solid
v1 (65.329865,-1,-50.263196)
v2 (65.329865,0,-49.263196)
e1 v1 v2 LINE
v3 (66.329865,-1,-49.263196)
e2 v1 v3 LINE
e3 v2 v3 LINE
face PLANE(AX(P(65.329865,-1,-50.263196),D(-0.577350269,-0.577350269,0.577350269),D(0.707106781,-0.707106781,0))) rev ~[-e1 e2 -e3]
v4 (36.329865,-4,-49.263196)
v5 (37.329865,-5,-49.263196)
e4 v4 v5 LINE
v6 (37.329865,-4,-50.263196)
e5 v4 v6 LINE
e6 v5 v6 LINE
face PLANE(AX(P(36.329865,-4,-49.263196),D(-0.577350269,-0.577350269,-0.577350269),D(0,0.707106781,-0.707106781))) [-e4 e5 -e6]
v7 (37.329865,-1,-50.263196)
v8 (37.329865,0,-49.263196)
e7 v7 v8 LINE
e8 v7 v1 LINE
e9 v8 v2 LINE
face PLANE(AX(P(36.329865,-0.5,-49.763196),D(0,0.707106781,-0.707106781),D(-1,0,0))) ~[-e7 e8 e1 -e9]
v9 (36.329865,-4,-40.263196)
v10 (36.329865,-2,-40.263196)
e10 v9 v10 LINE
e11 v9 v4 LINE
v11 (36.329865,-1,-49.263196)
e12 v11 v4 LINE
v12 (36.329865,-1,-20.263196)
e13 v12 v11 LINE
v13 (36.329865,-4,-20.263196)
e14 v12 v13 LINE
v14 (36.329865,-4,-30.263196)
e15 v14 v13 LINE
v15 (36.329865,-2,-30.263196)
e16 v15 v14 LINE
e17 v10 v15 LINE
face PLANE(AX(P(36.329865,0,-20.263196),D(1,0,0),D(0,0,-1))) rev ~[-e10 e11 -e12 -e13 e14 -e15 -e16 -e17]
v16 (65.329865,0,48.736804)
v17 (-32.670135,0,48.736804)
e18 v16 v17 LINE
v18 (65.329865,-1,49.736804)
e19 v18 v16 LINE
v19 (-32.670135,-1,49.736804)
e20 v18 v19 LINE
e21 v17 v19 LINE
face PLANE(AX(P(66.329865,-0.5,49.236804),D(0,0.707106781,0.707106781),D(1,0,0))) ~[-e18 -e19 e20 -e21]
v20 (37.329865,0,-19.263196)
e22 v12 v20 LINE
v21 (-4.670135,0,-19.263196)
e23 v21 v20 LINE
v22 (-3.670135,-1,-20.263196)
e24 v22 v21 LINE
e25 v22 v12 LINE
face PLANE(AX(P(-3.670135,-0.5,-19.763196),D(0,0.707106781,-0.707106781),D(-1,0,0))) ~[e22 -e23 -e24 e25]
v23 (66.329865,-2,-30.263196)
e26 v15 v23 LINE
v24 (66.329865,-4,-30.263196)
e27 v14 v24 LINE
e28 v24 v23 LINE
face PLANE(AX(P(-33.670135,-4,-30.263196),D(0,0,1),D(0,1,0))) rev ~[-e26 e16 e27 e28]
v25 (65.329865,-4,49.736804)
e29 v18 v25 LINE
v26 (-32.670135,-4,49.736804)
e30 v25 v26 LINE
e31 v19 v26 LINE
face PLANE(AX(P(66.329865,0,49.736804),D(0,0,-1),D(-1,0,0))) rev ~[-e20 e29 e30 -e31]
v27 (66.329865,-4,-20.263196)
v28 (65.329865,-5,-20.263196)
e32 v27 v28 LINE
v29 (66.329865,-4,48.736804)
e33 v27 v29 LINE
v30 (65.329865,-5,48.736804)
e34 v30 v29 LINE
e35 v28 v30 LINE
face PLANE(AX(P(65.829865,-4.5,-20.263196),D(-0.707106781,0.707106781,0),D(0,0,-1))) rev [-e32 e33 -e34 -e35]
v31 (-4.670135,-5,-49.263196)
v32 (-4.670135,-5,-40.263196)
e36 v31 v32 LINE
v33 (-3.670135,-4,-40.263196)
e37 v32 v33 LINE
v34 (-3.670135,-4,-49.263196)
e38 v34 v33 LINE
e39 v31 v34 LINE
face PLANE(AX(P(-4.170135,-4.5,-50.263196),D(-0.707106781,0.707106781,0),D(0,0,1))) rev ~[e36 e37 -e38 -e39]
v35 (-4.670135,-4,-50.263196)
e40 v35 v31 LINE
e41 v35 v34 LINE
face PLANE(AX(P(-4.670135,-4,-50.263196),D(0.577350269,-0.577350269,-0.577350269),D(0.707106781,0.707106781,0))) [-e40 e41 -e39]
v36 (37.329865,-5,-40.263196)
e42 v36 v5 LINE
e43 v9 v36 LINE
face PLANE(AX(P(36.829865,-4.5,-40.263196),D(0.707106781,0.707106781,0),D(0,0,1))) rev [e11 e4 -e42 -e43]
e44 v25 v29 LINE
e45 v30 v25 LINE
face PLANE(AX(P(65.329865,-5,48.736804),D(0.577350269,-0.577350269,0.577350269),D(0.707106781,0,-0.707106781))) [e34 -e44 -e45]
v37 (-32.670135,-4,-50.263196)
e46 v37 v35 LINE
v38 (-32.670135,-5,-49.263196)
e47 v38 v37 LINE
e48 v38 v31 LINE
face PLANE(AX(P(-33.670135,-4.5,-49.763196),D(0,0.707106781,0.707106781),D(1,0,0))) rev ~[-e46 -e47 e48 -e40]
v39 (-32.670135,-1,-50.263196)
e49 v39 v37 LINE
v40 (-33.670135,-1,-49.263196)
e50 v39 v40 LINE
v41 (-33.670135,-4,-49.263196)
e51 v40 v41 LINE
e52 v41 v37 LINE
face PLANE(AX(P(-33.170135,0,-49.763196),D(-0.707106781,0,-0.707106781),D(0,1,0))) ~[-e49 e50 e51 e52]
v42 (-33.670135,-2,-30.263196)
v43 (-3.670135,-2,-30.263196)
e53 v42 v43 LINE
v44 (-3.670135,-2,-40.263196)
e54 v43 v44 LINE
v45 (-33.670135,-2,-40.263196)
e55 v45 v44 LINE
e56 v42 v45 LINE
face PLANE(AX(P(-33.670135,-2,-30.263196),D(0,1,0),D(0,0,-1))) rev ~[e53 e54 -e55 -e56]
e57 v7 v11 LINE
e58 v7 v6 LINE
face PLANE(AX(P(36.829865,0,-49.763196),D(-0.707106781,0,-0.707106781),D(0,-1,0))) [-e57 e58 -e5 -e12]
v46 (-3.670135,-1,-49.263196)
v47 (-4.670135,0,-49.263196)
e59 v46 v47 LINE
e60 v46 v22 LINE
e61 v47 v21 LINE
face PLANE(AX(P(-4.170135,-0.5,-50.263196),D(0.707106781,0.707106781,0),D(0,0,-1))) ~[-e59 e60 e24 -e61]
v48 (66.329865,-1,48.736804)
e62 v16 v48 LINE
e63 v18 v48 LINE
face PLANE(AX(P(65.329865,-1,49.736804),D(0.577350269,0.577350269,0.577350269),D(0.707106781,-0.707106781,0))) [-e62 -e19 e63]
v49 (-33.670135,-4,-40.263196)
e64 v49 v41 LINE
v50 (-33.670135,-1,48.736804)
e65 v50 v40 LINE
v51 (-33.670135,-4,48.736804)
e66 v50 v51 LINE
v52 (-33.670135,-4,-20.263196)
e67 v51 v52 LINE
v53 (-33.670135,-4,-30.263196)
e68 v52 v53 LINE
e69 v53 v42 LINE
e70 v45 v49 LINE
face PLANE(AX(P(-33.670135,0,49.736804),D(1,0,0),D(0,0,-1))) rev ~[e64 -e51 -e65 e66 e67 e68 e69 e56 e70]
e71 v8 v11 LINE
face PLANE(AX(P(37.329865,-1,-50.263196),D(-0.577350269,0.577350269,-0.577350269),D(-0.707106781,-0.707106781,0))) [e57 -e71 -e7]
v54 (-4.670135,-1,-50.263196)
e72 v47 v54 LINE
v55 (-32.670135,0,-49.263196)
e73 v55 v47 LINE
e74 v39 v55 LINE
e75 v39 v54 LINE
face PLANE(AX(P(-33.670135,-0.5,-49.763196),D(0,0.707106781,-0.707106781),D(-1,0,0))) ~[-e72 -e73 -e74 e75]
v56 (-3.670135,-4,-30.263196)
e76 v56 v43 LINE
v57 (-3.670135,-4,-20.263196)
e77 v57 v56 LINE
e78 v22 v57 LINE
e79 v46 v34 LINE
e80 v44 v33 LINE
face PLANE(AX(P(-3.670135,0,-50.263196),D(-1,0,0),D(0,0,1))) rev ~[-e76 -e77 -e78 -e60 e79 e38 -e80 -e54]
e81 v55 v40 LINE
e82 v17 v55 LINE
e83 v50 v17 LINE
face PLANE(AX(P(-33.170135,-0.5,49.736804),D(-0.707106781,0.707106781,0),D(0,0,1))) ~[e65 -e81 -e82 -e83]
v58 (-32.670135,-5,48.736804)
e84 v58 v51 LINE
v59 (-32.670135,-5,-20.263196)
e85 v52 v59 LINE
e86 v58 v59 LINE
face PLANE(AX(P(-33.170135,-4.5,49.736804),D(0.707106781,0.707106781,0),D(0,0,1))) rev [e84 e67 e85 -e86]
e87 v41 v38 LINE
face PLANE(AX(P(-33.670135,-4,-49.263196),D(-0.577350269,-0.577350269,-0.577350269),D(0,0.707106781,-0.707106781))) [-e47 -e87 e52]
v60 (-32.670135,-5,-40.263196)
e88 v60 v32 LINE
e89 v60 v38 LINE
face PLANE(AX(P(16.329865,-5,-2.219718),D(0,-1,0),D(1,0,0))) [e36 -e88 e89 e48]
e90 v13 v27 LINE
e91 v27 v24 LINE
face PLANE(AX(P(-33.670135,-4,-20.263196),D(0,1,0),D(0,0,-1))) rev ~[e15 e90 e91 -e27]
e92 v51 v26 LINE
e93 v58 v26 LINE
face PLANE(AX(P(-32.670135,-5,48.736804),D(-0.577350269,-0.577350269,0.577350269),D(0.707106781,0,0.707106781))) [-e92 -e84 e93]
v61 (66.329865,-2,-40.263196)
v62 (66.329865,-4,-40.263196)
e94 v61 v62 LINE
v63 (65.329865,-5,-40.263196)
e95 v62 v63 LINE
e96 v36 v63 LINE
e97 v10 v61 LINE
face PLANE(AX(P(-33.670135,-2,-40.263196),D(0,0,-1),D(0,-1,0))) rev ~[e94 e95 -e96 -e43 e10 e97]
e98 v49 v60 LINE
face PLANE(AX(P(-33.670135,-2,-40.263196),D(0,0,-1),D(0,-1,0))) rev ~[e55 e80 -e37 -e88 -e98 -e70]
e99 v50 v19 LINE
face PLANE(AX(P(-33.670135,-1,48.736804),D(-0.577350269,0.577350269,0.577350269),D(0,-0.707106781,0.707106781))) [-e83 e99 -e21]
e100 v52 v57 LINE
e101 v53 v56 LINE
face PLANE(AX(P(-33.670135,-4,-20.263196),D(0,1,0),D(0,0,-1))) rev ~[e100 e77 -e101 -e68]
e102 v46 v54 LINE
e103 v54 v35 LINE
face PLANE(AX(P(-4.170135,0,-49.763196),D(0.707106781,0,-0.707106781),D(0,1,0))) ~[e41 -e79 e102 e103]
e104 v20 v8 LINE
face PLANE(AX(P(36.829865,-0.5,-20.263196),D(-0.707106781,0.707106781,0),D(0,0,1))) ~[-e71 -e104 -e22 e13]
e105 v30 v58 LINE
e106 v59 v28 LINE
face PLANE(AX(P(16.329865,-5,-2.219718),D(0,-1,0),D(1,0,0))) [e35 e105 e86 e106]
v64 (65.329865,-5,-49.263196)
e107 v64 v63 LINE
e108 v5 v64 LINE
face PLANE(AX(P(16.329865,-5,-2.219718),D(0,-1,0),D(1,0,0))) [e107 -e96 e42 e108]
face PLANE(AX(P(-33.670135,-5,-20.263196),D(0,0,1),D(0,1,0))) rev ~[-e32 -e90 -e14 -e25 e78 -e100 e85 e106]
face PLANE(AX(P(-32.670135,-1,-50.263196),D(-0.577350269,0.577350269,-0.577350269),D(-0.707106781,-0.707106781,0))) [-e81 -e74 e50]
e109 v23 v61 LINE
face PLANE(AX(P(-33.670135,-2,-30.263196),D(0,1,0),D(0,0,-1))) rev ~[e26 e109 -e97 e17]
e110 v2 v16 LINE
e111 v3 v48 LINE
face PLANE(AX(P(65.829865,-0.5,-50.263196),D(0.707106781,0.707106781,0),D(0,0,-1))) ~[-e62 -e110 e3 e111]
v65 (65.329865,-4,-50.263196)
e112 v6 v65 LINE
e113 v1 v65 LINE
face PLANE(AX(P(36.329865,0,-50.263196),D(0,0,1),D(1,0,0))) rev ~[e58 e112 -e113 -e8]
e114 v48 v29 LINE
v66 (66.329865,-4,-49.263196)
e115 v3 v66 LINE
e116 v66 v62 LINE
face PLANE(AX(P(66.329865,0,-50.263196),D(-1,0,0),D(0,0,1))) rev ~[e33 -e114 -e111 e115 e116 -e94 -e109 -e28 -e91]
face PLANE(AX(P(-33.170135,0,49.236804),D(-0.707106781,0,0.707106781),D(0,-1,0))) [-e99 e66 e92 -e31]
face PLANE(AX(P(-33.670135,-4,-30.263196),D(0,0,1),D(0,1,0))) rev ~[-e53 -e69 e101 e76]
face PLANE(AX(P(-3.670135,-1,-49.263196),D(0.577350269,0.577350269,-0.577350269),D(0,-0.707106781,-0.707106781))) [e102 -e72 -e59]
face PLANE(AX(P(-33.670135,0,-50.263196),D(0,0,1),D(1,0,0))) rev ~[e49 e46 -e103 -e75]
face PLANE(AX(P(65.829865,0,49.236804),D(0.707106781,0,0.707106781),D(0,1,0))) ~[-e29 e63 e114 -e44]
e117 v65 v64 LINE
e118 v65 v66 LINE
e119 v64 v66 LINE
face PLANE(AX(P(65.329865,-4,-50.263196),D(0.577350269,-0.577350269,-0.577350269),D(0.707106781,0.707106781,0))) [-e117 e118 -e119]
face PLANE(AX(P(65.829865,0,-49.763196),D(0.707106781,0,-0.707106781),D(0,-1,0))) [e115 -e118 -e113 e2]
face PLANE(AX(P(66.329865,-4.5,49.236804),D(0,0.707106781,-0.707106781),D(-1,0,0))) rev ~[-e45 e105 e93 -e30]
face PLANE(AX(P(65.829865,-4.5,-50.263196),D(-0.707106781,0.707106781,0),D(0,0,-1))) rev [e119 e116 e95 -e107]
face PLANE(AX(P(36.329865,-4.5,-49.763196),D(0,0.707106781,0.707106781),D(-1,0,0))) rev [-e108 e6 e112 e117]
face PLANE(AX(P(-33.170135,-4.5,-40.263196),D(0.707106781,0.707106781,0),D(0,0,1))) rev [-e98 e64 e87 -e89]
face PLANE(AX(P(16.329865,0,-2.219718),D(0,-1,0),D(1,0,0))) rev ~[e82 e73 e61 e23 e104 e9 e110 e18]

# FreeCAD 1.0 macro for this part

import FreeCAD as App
import Part
import Sketcher
from FreeCAD import Vector
Q = App.Units.Quantity


def edges_at(feature, points):
    """Names of the edges that pass closest to the given points."""
    edges = feature.Shape.Edges
    near = lambda p: min(range(len(edges)), key=lambda i: edges[i].distToShape(Part.Vertex(*p))[0])
    return sorted({f"Edge{near(p) + 1}" for p in points})


def add_polygon(sketch, points):
    """Adds a closed chain of lines whose ends are joined by coincident constraints."""
    first, n = sketch.GeometryCount, len(points)
    for a, b in zip(points, points[1:] + points[:1]):
        sketch.addGeometry(Part.LineSegment(App.Vector(*a, 0), App.Vector(*b, 0)), False)
    for i in range(n):
        sketch.addConstraint(Sketcher.Constraint("Coincident", first + i, 2, first + (i + 1) % n, 1))

doc = App.newDocument("Part")
params = doc.addObject("Spreadsheet::Sheet", "Params")
for row, (alias, value) in enumerate([
    ("sketch1_width", "100 mm"),
    ("sketch1_width2", "30 mm"),
    ("pad1_length", "5 mm"),
    ("sketch2_width", "3 mm"),
    ("sketch2_width2", "1 mm"),
    ("sketch2_height", "20 mm"),
    ("pocket1_length", "100 mm"),
    ("chamfer_size", "1 mm"),
], start=1):
    params.set(f"A{row}", alias)
    params.set(f"B{row}", "=" + value)
    params.setAlias(f"B{row}", alias)

body = doc.addObject("PartDesign::Body", "Body")

# Sketch on XZ plane
sketch1 = body.newObject("Sketcher::SketchObject", "Sketch")
sketch1.AttachmentSupport = (doc.getObject("XZ_Plane"), [""])
sketch1.MapMode = "FlatFace"
add_polygon(sketch1, [(66, -50), (66, 50), (-34, 50), (-34, -50), (-4, -50), (-4, -20), (36, -20), (36, -50)])  # lines 0-7
sketch1.addConstraint([
    Sketcher.Constraint("Vertical", 0),
    Sketcher.Constraint("Horizontal", 1),
    Sketcher.Constraint("Vertical", 2),
    Sketcher.Constraint("Horizontal", 3),
    Sketcher.Constraint("Vertical", 4),
    Sketcher.Constraint("Horizontal", 5),
    Sketcher.Constraint("Vertical", 6),
    Sketcher.Constraint("Horizontal", 7),
    Sketcher.Constraint("Horizontal", 3, 2, 6, 2),
    Sketcher.Constraint("Equal", 3, 7),
    Sketcher.Constraint("Equal", 1, 0),
    Sketcher.Constraint("Equal", 7, 4),
    Sketcher.Constraint("DistanceX", 1, 2, 1, 1, Q("100 mm")),
    Sketcher.Constraint("DistanceX", 3, 1, 3, 2, Q("30 mm")),
    Sketcher.Constraint("DistanceX", -1, 1, 0, 2, Q("66.329865 mm")),
    Sketcher.Constraint("DistanceY", -1, 1, 0, 2, Q("49.736804 mm")),
])
sketch1.setExpression("Constraints[20]", "Params.sketch1_width")
sketch1.setExpression("Constraints[21]", "Params.sketch1_width2")
pad1 = body.newObject("PartDesign::Pad", "Pad")
pad1.Profile = sketch1
pad1.setExpression("Length", "Params.pad1_length")

# Sketch on YZ plane
sketch2 = body.newObject("Sketcher::SketchObject", "Sketch001")
sketch2.AttachmentSupport = (doc.getObject("YZ_Plane"), [""])
sketch2.MapMode = "FlatFace"
sketch2.AttachmentOffset = App.Placement(Vector(0, 0, -33.670135), App.Rotation())
add_polygon(sketch2, [(-2, -40.3), (-5, -40.3), (-5, -20.3), (-4, -20.3), (-4, -30.3), (-2, -30.3)])  # lines 0-5
sketch2.addConstraint([
    Sketcher.Constraint("Horizontal", 0),
    Sketcher.Constraint("Vertical", 1),
    Sketcher.Constraint("Horizontal", 2),
    Sketcher.Constraint("Vertical", 3),
    Sketcher.Constraint("Horizontal", 4),
    Sketcher.Constraint("Vertical", 5),
    Sketcher.Constraint("Equal", 3, 5),
    Sketcher.Constraint("DistanceX", 0, 2, 0, 1, Q("3 mm")),
    Sketcher.Constraint("DistanceX", 2, 1, 2, 2, Q("1 mm")),
    Sketcher.Constraint("DistanceY", 1, 1, 1, 2, Q("20 mm")),
    Sketcher.Constraint("DistanceX", 0, 2, -1, 1, Q("5 mm")),
    Sketcher.Constraint("DistanceY", 0, 2, -1, 1, Q("40.263196 mm")),
])
sketch2.setExpression("Constraints[13]", "Params.sketch2_width")
sketch2.setExpression("Constraints[14]", "Params.sketch2_width2")
sketch2.setExpression("Constraints[15]", "Params.sketch2_height")
pocket1 = body.newObject("PartDesign::Pocket", "Pocket")
pocket1.Profile = sketch2
pocket1.setExpression("Length", "Params.pocket1_length")
pocket1.Reversed = True
doc.recompute()

chamfer = body.newObject("PartDesign::Chamfer", "Chamfer")
chamfer.Base = (pocket1, edges_at(pocket1, [
    (66.33, 0, -0.263),
    (16.33, 0, 49.737),
    (-33.67, 0, -0.263),
    (-18.67, 0, -50.263),
    (-3.67, 0, -35.263),
    (16.33, 0, -20.263),
    (36.33, 0, -35.263),
    (51.33, 0, -50.263),
    (66.33, -5, -45.263),
    (51.33, -5, -50.263),
    (36.33, -5, -45.263),
    (-3.67, -5, -45.263),
    (-18.67, -5, -50.263),
    (-33.67, -5, -45.263),
    (66.33, -2.5, -50.263),
    (36.33, -2.5, -50.263),
    (-3.67, -2.5, -50.263),
    (-33.67, -2.5, -50.263),
    (-33.67, -2.5, 49.737),
    (66.33, -2.5, 49.737),
    (-33.67, -5, 14.737),
    (16.33, -5, 49.737),
    (66.33, -5, 14.737),
]))
chamfer.setExpression("Size", "Params.chamfer_size")

doc.recompute()
